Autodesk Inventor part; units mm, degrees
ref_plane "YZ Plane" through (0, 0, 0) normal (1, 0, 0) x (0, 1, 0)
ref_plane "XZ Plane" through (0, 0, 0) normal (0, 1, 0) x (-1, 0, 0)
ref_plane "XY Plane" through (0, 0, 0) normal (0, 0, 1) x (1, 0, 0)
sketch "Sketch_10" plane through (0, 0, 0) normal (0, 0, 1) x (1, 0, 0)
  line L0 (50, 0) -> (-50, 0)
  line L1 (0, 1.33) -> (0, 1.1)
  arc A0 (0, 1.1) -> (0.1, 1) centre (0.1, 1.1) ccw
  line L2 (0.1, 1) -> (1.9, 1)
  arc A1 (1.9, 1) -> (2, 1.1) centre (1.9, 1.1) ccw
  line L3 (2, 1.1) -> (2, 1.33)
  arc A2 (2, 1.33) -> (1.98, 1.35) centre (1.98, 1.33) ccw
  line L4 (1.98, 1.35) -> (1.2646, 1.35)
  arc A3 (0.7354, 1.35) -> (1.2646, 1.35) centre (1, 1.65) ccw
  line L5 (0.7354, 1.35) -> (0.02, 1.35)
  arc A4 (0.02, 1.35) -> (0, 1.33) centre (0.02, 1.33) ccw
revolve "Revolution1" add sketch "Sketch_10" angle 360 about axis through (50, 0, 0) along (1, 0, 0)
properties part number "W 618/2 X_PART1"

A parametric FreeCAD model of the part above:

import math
import FreeCAD as App
import Part
import Sketcher

doc = App.newDocument("Part")
body = doc.addObject("PartDesign::Body", "Body")

# Sketch on XY plane
sketch1 = body.newObject("Sketcher::SketchObject", "Sketch")
sketch1.AttachmentSupport = (doc.getObject("XY_Plane"), [""])
sketch1.MapMode = "FlatFace"
sketch1.addGeometry([
    Part.ArcOfCircle(Part.Circle(App.Vector(0.02, 1.33, 0), App.Vector(0, 0, 1), 0.02), math.radians(90), math.radians(180)),  # 0
    Part.LineSegment(App.Vector(0, 1.33, 0), App.Vector(0, 1.1, 0)),  # 1
    Part.ArcOfCircle(Part.Circle(App.Vector(0.1, 1.1, 0), App.Vector(0, 0, 1), 0.1), math.radians(180), math.radians(270)),  # 2
    Part.LineSegment(App.Vector(0.1, 1, 0), App.Vector(1.9, 1, 0)),  # 3
    Part.ArcOfCircle(Part.Circle(App.Vector(1.9, 1.1, 0), App.Vector(0, 0, 1), 0.1), math.radians(-90), math.radians(0)),  # 4
    Part.LineSegment(App.Vector(2, 1.1, 0), App.Vector(2, 1.33, 0)),  # 5
    Part.ArcOfCircle(Part.Circle(App.Vector(1.98, 1.33, 0), App.Vector(0, 0, 1), 0.02), math.radians(0), math.radians(90)),  # 6
    Part.LineSegment(App.Vector(1.98, 1.35, 0), App.Vector(1.2646, 1.35, 0)),  # 7
    Part.ArcOfCircle(Part.Circle(App.Vector(1, 1.65, 0), App.Vector(0, 0, 1), 0.400016), math.radians(-131.412294), math.radians(-48.587706)),  # 8
    Part.LineSegment(App.Vector(0.7354, 1.35, 0), App.Vector(0.02, 1.35, 0)),  # 9
], False)
sketch1.addConstraint([
    Sketcher.Constraint("Tangent", 0, 2, 1, 1),
    Sketcher.Constraint("Tangent", 1, 2, 2, 1),
    Sketcher.Constraint("Tangent", 2, 2, 3, 1),
    Sketcher.Constraint("Tangent", 3, 2, 4, 1),
    Sketcher.Constraint("Tangent", 4, 2, 5, 1),
    Sketcher.Constraint("Tangent", 5, 2, 6, 1),
    Sketcher.Constraint("Tangent", 6, 2, 7, 1),
    Sketcher.Constraint("Coincident", 7, 2, 8, 2),
    Sketcher.Constraint("Coincident", 8, 1, 9, 1),
    Sketcher.Constraint("Tangent", 9, 2, 0, 1),
    Sketcher.Constraint("Vertical", 1),
    Sketcher.Constraint("Horizontal", 3),
    Sketcher.Constraint("Vertical", 5),
    Sketcher.Constraint("Horizontal", 7),
    Sketcher.Constraint("Horizontal", 9),
    Sketcher.Constraint("Equal", 2, 4),
    Sketcher.Constraint("Equal", 0, 6),
    Sketcher.Constraint("PointOnObject", 0, 2, -2),
    Sketcher.Constraint("Horizontal", 0, 3, 6, 3),
    Sketcher.Constraint("Equal", 7, 9),
    Sketcher.Constraint("Radius", 2, 0.1),
    Sketcher.Constraint("Radius", 8, 0.4),
    Sketcher.Constraint("Radius", 0, 0.02),
    Sketcher.Constraint("DistanceX", 3, 1, 3, 2, 1.8),
    Sketcher.Constraint("DistanceY", -1, 1, 2, 2, 1.0),
    Sketcher.Constraint("DistanceY", 1, 2, 1, 1, 0.23),
    Sketcher.Constraint("DistanceY", 7, 2, 8, 3, 0.3),
])
revolution = body.newObject("PartDesign::Revolution", "Revolution")
revolution.Profile = sketch1
revolution.ReferenceAxis = (sketch1, ["H_Axis"])
revolution.Angle = 360

doc.recompute()
